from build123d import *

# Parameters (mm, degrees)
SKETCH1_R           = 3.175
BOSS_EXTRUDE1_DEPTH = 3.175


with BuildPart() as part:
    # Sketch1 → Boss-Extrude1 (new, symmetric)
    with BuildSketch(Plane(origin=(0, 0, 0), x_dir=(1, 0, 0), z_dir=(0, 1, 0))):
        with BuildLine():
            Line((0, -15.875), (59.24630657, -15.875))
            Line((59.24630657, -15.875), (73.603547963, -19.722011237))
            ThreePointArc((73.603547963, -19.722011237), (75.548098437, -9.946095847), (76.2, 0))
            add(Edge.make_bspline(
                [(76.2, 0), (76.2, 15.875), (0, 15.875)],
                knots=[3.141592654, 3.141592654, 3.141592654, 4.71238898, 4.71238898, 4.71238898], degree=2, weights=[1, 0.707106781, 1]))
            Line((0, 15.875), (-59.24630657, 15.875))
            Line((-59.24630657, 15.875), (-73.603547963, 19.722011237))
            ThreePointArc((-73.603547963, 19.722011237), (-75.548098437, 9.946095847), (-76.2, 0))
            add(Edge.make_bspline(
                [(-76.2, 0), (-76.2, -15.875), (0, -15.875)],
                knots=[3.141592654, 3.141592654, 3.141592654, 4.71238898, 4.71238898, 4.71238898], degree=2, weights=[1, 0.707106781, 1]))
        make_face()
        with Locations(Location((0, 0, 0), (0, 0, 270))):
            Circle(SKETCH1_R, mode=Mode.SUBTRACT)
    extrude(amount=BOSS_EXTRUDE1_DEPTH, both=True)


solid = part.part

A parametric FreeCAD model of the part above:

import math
import FreeCAD as App
import Part
import Sketcher

V = App.Vector
Q = App.Units.Quantity

doc = App.newDocument("Part")
params = doc.addObject("Spreadsheet::Sheet", "Params")
for row, (alias, value) in enumerate([
    ("sketch1_diameter", "0.25 in"),
    ("pad1_length", "0.25 in"),
], start=1):
    params.set(f"A{row}", alias)
    params.set(f"B{row}", "=" + value)
    params.setAlias(f"B{row}", alias)

body = doc.addObject("PartDesign::Body", "Body")

# Sketch on XZ plane
sketch1 = body.newObject("Sketcher::SketchObject", "Sketch")
sketch1.AttachmentSupport = (doc.getObject("XZ_Plane"), [""])
sketch1.MapMode = "FlatFace"
sketch1.addGeometry([
    Part.LineSegment(V(0, 15.875, 0), V(59.246307, 15.875, 0)),  # 0
    Part.LineSegment(V(59.246307, 15.875, 0), V(73.603548, 19.722011, 0)),  # 1
    Part.ArcOfCircle(Part.Circle(V(0, 0, 0), V(0, 0, 1), 76.2), math.radians(0), math.radians(15)),  # 2
    Part.BSplineCurve([V(76.2, 0, 0), V(76.2, -15.875, 0), V(0, -15.875, 0)], [3, 3], [3.141592654, 4.71238898], False, 2, [1, 0.707106781, 1], False),  # 3
    Part.LineSegment(V(0, -15.875, 0), V(-59.246307, -15.875, 0)),  # 4
    Part.LineSegment(V(-59.246307, -15.875, 0), V(-73.603548, -19.722011, 0)),  # 5
    Part.ArcOfCircle(Part.Circle(V(0, 0, 0), V(0, 0, 1), 76.2), math.radians(180), math.radians(195)),  # 6
    Part.BSplineCurve([V(-76.2, 0, 0), V(-76.2, 15.875, 0), V(0, 15.875, 0)], [3, 3], [3.141592654, 4.71238898], False, 2, [1, 0.707106781, 1], False),  # 7
    Part.Circle(V(0, 0, 0), V(0, 0, 1), 3.175),  # 8
], False)
sketch1.addConstraint([
    Sketcher.Constraint("Block", 3),
    Sketcher.Constraint("Block", 7),
    Sketcher.Constraint("Coincident", 0, 2, 1, 1),
    Sketcher.Constraint("Coincident", 1, 2, 2, 2),
    Sketcher.Constraint("Coincident", 2, 1, 3, 1),
    Sketcher.Constraint("Coincident", 3, 2, 4, 1),
    Sketcher.Constraint("Coincident", 4, 2, 5, 1),
    Sketcher.Constraint("Coincident", 5, 2, 6, 2),
    Sketcher.Constraint("Coincident", 6, 1, 7, 1),
    Sketcher.Constraint("Coincident", 7, 2, 0, 1),
    Sketcher.Constraint("Horizontal", 0),
    Sketcher.Constraint("Horizontal", 4),
    Sketcher.Constraint("Coincident", 2, 3, -1, 1),
    Sketcher.Constraint("Coincident", 6, 3, -1, 1),
    Sketcher.Constraint("Coincident", 8, 3, -1, 1),
    Sketcher.Constraint("Diameter", 8, Q("0.25 in")),
    Sketcher.Constraint("Distance", 1, Q("14.86371 mm")),
    Sketcher.Constraint("Distance", 5, Q("14.86371 mm")),
    Sketcher.Constraint("DistanceY", -1, 1, 1, 2, Q("19.722011 mm")),
    Sketcher.Constraint("DistanceY", 5, 2, -1, 1, Q("19.722011 mm")),
])
sketch1.setExpression("Constraints[15]", "Params.sketch1_diameter")
pad1 = body.newObject("PartDesign::Pad", "Pad")
pad1.Profile = sketch1
pad1.setExpression("Length", "Params.pad1_length")
pad1.Midplane = True

doc.recompute()
